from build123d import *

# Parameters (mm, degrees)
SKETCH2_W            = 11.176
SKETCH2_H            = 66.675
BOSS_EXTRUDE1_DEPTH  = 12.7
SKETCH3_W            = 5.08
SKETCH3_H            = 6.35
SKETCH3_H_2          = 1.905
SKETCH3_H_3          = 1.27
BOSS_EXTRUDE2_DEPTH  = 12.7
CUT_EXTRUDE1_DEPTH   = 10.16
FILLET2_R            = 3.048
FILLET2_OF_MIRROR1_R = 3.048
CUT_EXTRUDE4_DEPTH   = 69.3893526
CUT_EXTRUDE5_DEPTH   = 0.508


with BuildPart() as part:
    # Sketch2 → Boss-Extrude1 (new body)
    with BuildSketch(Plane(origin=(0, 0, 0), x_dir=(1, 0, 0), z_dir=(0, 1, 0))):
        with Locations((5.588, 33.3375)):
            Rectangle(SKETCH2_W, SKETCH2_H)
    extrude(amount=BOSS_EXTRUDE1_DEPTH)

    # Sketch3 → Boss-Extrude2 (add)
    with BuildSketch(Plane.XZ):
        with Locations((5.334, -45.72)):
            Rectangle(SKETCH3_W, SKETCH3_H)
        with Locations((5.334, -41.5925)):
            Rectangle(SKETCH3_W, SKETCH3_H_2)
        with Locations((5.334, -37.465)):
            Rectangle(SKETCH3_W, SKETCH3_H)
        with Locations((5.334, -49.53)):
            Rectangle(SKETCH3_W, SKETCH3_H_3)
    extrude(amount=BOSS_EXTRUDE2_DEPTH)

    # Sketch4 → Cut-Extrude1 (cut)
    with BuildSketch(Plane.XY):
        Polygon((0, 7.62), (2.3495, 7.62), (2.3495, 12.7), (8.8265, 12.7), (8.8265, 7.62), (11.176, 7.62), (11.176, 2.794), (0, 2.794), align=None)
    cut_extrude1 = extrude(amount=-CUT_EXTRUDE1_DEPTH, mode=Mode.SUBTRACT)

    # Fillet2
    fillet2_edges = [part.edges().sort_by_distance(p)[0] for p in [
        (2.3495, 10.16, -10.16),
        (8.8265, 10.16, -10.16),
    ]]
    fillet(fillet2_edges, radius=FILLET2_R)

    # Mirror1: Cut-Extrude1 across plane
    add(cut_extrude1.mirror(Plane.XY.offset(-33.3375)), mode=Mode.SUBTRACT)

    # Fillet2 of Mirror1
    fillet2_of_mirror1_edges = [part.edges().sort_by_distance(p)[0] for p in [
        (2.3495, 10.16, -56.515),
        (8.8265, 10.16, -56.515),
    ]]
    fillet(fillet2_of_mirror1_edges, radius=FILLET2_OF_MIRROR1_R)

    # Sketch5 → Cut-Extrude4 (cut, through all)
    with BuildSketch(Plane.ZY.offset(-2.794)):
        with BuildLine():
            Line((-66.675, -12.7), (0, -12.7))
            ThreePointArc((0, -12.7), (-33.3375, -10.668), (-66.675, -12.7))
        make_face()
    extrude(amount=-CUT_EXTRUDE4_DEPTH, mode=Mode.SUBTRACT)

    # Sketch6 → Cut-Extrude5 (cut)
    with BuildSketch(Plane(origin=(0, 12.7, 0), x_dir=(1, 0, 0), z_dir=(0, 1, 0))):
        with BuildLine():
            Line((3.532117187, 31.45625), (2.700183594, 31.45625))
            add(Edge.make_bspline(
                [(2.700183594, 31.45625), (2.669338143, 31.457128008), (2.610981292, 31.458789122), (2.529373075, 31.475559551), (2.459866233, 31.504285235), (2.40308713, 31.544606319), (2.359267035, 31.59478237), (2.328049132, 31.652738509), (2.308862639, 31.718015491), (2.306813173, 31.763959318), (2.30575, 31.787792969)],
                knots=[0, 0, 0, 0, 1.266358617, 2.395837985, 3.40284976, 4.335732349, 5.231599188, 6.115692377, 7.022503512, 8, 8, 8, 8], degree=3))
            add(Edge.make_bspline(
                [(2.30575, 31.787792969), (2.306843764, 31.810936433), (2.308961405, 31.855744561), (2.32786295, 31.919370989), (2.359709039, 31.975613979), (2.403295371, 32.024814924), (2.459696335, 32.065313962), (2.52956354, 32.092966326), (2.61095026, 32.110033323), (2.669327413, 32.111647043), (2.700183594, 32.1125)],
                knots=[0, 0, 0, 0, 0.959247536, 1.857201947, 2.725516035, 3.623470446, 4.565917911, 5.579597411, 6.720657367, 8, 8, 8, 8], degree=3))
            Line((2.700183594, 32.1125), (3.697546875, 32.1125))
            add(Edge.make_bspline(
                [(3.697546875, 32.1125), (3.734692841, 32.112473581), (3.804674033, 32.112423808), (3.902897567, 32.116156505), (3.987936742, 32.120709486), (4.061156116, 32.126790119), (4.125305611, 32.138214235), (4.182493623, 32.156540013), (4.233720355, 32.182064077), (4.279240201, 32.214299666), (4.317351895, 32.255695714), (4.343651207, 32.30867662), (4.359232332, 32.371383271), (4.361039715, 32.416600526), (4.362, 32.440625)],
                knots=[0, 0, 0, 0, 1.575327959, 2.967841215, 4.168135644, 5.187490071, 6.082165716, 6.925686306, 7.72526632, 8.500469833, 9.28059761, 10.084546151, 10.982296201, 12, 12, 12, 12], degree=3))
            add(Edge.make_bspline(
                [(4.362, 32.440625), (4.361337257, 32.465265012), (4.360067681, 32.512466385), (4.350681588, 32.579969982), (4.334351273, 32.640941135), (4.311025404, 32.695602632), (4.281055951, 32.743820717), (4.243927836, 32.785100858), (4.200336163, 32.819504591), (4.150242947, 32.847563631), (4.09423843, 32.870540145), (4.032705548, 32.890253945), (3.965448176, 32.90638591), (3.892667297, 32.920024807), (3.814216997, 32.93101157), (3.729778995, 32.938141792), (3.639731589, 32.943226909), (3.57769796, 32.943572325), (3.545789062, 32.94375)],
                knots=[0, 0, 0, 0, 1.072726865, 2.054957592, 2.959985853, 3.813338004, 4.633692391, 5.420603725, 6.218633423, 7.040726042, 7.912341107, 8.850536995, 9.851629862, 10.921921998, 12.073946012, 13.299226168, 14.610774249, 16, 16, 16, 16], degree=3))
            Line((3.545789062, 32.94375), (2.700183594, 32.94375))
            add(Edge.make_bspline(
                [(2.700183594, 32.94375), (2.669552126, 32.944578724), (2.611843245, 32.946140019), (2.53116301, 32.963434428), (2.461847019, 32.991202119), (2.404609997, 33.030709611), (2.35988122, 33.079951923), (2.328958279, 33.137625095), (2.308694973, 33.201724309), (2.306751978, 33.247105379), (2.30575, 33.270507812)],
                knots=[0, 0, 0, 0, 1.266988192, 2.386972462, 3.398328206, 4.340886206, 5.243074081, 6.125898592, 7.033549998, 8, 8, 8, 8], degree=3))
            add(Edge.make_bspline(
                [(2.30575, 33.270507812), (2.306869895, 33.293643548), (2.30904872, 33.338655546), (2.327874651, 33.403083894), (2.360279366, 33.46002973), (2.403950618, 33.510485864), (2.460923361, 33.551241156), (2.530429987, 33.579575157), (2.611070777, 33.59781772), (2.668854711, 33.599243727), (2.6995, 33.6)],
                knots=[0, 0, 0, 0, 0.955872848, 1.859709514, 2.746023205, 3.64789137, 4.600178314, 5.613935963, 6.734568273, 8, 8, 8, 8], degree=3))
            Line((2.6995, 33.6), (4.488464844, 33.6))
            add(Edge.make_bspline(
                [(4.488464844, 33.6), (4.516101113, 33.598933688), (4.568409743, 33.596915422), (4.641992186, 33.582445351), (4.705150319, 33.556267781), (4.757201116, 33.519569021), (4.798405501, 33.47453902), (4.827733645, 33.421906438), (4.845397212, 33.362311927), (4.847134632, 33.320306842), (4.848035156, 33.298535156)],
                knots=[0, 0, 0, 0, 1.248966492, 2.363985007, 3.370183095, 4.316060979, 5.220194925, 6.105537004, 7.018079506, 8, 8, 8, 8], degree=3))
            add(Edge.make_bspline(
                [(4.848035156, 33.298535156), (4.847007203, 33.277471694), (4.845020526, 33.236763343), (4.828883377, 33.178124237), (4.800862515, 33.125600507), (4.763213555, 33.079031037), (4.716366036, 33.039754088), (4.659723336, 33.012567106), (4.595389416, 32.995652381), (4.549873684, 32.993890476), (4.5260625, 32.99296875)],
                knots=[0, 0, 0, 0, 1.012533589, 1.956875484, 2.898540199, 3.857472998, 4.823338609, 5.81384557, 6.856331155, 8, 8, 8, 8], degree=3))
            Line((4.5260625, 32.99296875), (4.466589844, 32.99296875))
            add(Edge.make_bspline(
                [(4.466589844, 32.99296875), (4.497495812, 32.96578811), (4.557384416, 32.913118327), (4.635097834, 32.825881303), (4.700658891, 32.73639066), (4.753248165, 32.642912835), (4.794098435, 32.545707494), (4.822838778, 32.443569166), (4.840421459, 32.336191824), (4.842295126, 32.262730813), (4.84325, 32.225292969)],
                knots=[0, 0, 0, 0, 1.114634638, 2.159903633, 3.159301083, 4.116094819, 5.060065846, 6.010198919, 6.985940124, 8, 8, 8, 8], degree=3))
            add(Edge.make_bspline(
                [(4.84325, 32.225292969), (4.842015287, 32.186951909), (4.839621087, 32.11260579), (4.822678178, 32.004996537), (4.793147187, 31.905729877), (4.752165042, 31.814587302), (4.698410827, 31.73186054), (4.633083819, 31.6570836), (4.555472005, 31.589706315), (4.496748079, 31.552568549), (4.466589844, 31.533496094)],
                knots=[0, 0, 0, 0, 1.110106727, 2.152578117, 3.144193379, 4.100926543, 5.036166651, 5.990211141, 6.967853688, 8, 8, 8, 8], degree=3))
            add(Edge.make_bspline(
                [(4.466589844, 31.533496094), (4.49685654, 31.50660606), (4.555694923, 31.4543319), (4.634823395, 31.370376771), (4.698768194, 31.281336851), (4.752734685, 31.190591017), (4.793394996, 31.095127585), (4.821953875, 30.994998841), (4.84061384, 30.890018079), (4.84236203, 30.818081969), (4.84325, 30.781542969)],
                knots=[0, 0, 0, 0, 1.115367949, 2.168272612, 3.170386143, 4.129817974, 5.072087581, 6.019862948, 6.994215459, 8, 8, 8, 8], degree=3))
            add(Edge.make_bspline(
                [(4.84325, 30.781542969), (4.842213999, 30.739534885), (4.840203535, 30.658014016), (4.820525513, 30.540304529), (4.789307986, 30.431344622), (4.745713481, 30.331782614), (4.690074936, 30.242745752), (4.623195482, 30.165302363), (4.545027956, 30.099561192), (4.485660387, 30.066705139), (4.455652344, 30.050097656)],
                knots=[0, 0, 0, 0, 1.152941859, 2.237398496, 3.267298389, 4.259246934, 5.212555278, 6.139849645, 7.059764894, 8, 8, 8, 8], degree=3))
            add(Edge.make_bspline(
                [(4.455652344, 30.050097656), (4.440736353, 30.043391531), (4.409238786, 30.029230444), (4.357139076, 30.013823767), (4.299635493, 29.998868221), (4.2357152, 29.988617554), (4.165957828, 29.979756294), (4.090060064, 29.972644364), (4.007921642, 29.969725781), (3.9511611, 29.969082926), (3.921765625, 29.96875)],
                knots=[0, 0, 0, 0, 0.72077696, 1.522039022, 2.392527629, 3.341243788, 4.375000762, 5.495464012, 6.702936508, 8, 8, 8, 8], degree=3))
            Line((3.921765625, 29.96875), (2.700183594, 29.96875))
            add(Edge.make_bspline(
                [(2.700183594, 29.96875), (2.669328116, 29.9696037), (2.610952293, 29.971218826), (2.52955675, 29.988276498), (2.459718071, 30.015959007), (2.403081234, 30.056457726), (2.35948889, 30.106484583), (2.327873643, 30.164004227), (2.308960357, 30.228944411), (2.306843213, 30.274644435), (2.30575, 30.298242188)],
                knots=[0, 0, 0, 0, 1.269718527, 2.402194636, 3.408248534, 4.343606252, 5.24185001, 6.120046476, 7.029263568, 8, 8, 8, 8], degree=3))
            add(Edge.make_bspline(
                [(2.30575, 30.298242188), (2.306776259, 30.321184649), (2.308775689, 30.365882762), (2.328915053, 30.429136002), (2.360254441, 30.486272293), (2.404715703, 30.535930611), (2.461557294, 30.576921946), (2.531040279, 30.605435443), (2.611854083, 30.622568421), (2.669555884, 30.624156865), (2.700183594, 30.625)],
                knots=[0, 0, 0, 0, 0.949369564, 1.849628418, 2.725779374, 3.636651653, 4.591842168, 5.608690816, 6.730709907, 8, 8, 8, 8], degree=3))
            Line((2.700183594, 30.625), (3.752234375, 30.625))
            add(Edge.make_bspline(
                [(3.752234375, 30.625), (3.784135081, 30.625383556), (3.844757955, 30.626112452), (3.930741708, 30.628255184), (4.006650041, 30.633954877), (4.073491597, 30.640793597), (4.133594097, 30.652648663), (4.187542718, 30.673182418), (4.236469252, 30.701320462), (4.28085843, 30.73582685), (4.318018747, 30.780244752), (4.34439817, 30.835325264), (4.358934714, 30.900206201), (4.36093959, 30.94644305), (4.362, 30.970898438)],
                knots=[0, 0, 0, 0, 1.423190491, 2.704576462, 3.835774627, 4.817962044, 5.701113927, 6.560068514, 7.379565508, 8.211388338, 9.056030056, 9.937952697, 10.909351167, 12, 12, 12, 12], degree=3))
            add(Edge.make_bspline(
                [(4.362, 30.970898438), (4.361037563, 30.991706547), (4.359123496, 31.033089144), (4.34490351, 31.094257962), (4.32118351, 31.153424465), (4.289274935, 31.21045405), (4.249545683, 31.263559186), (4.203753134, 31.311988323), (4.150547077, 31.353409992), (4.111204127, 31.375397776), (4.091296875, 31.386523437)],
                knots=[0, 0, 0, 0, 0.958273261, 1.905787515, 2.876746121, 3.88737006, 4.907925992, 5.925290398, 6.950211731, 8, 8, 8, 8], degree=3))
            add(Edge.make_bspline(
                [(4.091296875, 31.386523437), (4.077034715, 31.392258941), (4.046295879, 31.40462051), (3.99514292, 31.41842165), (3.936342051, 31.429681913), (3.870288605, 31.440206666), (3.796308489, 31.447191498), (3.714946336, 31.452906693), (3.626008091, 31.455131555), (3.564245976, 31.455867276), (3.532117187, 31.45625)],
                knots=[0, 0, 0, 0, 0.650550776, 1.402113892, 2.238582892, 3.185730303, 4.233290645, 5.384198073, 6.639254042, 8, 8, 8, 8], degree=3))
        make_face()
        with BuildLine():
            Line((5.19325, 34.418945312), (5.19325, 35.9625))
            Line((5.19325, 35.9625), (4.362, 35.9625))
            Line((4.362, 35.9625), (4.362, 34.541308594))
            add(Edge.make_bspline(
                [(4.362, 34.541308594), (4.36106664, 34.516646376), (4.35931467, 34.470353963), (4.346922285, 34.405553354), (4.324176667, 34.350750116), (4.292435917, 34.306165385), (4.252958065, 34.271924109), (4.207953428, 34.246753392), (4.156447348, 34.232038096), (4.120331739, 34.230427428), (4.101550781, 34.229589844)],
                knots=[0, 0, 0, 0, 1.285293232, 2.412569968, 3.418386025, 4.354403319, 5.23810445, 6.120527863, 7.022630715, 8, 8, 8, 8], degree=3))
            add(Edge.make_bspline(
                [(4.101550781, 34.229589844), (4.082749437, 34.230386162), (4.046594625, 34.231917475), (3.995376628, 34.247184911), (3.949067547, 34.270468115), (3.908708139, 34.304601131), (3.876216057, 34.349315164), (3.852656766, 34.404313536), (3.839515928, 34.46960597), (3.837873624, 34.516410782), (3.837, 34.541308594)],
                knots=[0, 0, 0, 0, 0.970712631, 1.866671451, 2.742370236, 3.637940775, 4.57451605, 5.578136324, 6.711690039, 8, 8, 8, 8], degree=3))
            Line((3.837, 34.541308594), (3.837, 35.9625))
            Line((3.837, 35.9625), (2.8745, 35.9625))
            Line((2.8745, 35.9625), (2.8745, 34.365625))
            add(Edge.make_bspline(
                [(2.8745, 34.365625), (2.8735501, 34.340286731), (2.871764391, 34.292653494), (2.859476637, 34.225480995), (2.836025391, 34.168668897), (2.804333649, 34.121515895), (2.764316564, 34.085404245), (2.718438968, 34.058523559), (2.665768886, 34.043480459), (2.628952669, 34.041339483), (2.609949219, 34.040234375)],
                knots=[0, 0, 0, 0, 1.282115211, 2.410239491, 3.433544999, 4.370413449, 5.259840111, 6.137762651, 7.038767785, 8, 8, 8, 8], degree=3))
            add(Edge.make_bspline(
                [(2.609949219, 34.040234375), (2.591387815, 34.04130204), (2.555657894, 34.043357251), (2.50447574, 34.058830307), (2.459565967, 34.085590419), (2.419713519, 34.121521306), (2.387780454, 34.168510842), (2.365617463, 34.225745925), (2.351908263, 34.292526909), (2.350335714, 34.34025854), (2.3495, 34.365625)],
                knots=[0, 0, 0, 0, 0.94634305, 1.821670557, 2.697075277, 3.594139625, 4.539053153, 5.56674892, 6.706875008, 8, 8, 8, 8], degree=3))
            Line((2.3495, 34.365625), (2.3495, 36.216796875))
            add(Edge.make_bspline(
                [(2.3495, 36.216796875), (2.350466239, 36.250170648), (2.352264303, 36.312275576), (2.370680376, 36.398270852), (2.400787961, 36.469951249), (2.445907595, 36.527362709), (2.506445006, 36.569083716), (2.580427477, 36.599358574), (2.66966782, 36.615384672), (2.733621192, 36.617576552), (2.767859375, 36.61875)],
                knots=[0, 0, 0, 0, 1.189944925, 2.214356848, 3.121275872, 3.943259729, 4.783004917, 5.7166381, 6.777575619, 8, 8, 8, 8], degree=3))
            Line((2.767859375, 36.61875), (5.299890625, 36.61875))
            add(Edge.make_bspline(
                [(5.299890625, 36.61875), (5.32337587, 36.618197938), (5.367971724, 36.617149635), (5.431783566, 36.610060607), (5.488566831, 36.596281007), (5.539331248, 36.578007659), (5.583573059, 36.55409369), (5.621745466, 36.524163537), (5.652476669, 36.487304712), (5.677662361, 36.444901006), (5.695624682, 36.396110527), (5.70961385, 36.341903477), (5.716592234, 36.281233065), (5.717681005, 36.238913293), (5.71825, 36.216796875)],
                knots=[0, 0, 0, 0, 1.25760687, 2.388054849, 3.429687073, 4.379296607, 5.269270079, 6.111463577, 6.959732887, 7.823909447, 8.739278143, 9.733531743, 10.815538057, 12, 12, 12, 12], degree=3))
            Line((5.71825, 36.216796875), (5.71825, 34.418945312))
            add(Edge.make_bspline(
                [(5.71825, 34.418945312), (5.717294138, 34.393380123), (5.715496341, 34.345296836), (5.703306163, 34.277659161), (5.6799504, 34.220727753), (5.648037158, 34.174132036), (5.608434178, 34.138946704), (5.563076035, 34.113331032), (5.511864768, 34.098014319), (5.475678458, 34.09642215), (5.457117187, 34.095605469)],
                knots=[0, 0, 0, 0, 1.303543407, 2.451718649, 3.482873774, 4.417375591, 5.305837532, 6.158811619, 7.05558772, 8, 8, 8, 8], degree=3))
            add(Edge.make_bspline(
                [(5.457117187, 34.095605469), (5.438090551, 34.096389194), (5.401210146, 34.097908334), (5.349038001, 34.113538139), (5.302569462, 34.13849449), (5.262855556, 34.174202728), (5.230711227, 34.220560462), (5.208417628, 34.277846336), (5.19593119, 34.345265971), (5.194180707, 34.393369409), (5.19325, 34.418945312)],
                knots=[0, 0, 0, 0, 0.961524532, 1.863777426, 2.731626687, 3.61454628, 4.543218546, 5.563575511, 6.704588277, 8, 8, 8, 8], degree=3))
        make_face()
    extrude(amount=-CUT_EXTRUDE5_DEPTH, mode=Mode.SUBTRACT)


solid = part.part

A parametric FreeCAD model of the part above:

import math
import FreeCAD as App
import Part
import Sketcher
Q = App.Units.Quantity


def edges_at(feature, points):
    """Names of the edges that pass closest to the given points."""
    edges = feature.Shape.Edges
    near = lambda p: min(range(len(edges)), key=lambda i: edges[i].distToShape(Part.Vertex(*p))[0])
    return sorted({f"Edge{near(p) + 1}" for p in points})


def add_polygon(sketch, points):
    """Adds a closed chain of lines whose ends are joined by coincident constraints."""
    first, n = sketch.GeometryCount, len(points)
    for a, b in zip(points, points[1:] + points[:1]):
        sketch.addGeometry(Part.LineSegment(App.Vector(*a, 0), App.Vector(*b, 0)), False)
    for i in range(n):
        sketch.addConstraint(Sketcher.Constraint("Coincident", first + i, 2, first + (i + 1) % n, 1))

doc = App.newDocument("Part")
body = doc.addObject("PartDesign::Body", "Body")

# Sketch on XZ plane
sketch1 = body.newObject("Sketcher::SketchObject", "Sketch")
sketch1.AttachmentSupport = (doc.getObject("XZ_Plane"), [""])
sketch1.MapMode = "FlatFace"
add_polygon(sketch1, [(0, -66.675), (0, 0), (11.176, 0), (11.176, -66.675)])  # lines 0-3
sketch1.addConstraint([
    Sketcher.Constraint("Vertical", 0),
    Sketcher.Constraint("Horizontal", 1),
    Sketcher.Constraint("Vertical", 2),
    Sketcher.Constraint("Horizontal", 3),
    Sketcher.Constraint("Coincident", 0, 2, -1, 1),
    Sketcher.Constraint("DistanceX", 1, 1, 1, 2, Q("0.44 in")),
    Sketcher.Constraint("DistanceY", 0, 1, 0, 2, Q("2.625 in")),
])
pad1 = body.newObject("PartDesign::Pad", "Pad")
pad1.Profile = sketch1
pad1.Length = Q("0.5 in")
pad1.Reversed = True

# Sketch on XZ plane
sketch2 = body.newObject("Sketcher::SketchObject", "Sketch001")
sketch2.AttachmentSupport = (doc.getObject("XZ_Plane"), [""])
sketch2.MapMode = "FlatFace"
add_polygon(sketch2, [(7.874, -34.29), (2.794, -34.29), (2.794, -50.165), (7.874, -50.165)])  # lines 0-3
sketch2.addConstraint([
    Sketcher.Constraint("Horizontal", 0),
    Sketcher.Constraint("Vertical", 1),
    Sketcher.Constraint("Horizontal", 2),
    Sketcher.Constraint("Vertical", 3),
    Sketcher.Constraint("DistanceX", 0, 2, 0, 1, Q("0.2 in")),
    Sketcher.Constraint("DistanceY", 1, 2, 1, 1, Q("0.625 in")),
    Sketcher.Constraint("DistanceX", -1, 1, 0, 2, Q("0.11 in")),
    Sketcher.Constraint("DistanceY", 0, 2, -1, 1, Q("1.35 in")),
])
pad2 = body.newObject("PartDesign::Pad", "Pad001")
pad2.Profile = sketch2
pad2.Length = Q("0.5 in")

# Sketch on XY plane
sketch3 = body.newObject("Sketcher::SketchObject", "Sketch002")
sketch3.AttachmentSupport = (doc.getObject("XY_Plane"), [""])
sketch3.MapMode = "FlatFace"
add_polygon(sketch3, [(2.3495, 7.62), (0, 7.62), (0, 2.794), (11.176, 2.794), (11.176, 7.62), (8.8265, 7.62), (8.8265, 12.7), (2.3495, 12.7)])  # lines 0-7
sketch3.addConstraint([
    Sketcher.Constraint("Horizontal", 0),
    Sketcher.Constraint("Vertical", 1),
    Sketcher.Constraint("Horizontal", 2),
    Sketcher.Constraint("Vertical", 3),
    Sketcher.Constraint("Horizontal", 4),
    Sketcher.Constraint("Vertical", 5),
    Sketcher.Constraint("Horizontal", 6),
    Sketcher.Constraint("Vertical", 7),
    Sketcher.Constraint("PointOnObject", 0, 2, -2),
    Sketcher.Constraint("Horizontal", 0, 2, 3, 2),
    Sketcher.Constraint("Equal", 0, 4),
    Sketcher.Constraint("DistanceY", 5, 1, 5, 2, Q("0.2 in")),
    Sketcher.Constraint("DistanceX", 2, 1, 2, 2, Q("0.44 in")),
    Sketcher.Constraint("DistanceY", 1, 2, 1, 1, Q("0.19 in")),
    Sketcher.Constraint("DistanceY", -1, 1, 0, 2, Q("0.3 in")),
    Sketcher.Constraint("DistanceX", 6, 2, 6, 1, Q("0.255 in")),
])
pocket1 = body.newObject("PartDesign::Pocket", "Pocket")
pocket1.Profile = sketch3
pocket1.Length = Q("0.4 in")
doc.recompute()

fillet = body.newObject("PartDesign::Fillet", "Fillet")
fillet.Base = (pocket1, edges_at(pocket1, [(2.349, 10.16, -10.16), (8.826, 10.16, -10.16)]))
fillet.Radius = Q("0.12 in")
doc.recompute()

datumplane = body.newObject("PartDesign::Plane", "DatumPlane")
datumplane.AttachmentSupport = (doc.getObject("XY_Plane"), [""])
datumplane.MapMode = "FlatFace"
datumplane.AttachmentOffset = App.Placement(App.Vector(0, 0, -1.3125 * 25.4), App.Rotation())
mirrored = body.newObject("PartDesign::Mirrored", "Mirrored")
mirrored.Originals = [pocket1]
mirrored.MirrorPlane = (datumplane, [""])
body.Tip = mirrored
doc.recompute()

fillet2 = body.newObject("PartDesign::Fillet", "Fillet001")
fillet2.Base = (mirrored, edges_at(mirrored, [(2.349, 10.16, -56.515), (8.826, 10.16, -56.515)]))
fillet2.Radius = Q("0.12 in")

# Sketch on YZ plane
sketch4 = body.newObject("Sketcher::SketchObject", "Sketch003")
sketch4.AttachmentSupport = (doc.getObject("YZ_Plane"), [""])
sketch4.MapMode = "FlatFace"
sketch4.AttachmentOffset = App.Placement(App.Vector(0, 0, 0.11 * 25.4), App.Rotation())
sketch4.addGeometry([
    Part.LineSegment(App.Vector(-12.7, -66.675, 0), App.Vector(-12.7, 0, 0)),
    Part.ArcOfCircle(Part.Circle(App.Vector(-285.15568, -33.3375, 0), App.Vector(0, 0, 1), 274.48768), math.radians(-6.975998), math.radians(6.975998)),
], False)
sketch4.addConstraint([
    Sketcher.Constraint("Coincident", 0, 1, 1, 1),
    Sketcher.Constraint("Coincident", 1, 2, 0, 2),
    Sketcher.Constraint("Vertical", 0),
    Sketcher.Constraint("PointOnObject", 1, 2, -1),
    Sketcher.Constraint("DistanceX", 0, 1, -1, 1, Q("0.5 in")),
    Sketcher.Constraint("DistanceY", 0, 1, 0, 2, Q("2.625 in")),
    Sketcher.Constraint("Radius", 1, 274.48768),
])
pocket2 = body.newObject("PartDesign::Pocket", "Pocket001")
pocket2.Profile = sketch4
pocket2.Type = "ThroughAll"
pocket2.Reversed = True

# Sketch on XZ plane
sketch5 = body.newObject("Sketcher::SketchObject", "Sketch004")
sketch5.AttachmentSupport = (doc.getObject("XZ_Plane"), [""])
sketch5.MapMode = "FlatFace"
sketch5.AttachmentOffset = App.Placement(App.Vector(0, 0, -0.5 * 25.4), App.Rotation())
sketch5.addGeometry([
    Part.LineSegment(App.Vector(2.700184, -31.45625, 0), App.Vector(3.532117, -31.45625, 0)),  # 0
    Part.BSplineCurve([App.Vector(4.091297, -31.386523, 0), App.Vector(4.077035, -31.392259, 0), App.Vector(4.046296, -31.404621, 0), App.Vector(3.995143, -31.418422, 0), App.Vector(3.936342, -31.429682, 0), App.Vector(3.870289, -31.440207, 0), App.Vector(3.796308, -31.447191, 0), App.Vector(3.714946, -31.452907, 0), App.Vector(3.626008, -31.455132, 0), App.Vector(3.564246, -31.455867, 0), App.Vector(3.532117, -31.45625, 0)], [4, 1, 1, 1, 1, 1, 1, 1, 4], [0, 0.650550776, 1.402113892, 2.238582892, 3.185730303, 4.233290645, 5.384198073, 6.639254042, 8], False, 3, [1, 1, 1, 1, 1, 1, 1, 1, 1, 1, 1], False),  # 1
    Part.BSplineCurve([App.Vector(4.362, -30.970898, 0), App.Vector(4.361038, -30.991707, 0), App.Vector(4.359123, -31.033089, 0), App.Vector(4.344904, -31.094258, 0), App.Vector(4.321184, -31.153424, 0), App.Vector(4.289275, -31.210454, 0), App.Vector(4.249546, -31.263559, 0), App.Vector(4.203753, -31.311988, 0), App.Vector(4.150547, -31.35341, 0), App.Vector(4.111204, -31.375398, 0), App.Vector(4.091297, -31.386523, 0)], [4, 1, 1, 1, 1, 1, 1, 1, 4], [0, 0.958273261, 1.905787515, 2.876746121, 3.88737006, 4.907925992, 5.925290398, 6.950211731, 8], False, 3, [1, 1, 1, 1, 1, 1, 1, 1, 1, 1, 1], False),  # 2
    Part.BSplineCurve([App.Vector(3.752234, -30.625, 0), App.Vector(3.784135, -30.625384, 0), App.Vector(3.844758, -30.626112, 0), App.Vector(3.930742, -30.628255, 0), App.Vector(4.00665, -30.633955, 0), App.Vector(4.073492, -30.640794, 0), App.Vector(4.133594, -30.652649, 0), App.Vector(4.187543, -30.673182, 0), App.Vector(4.236469, -30.70132, 0), App.Vector(4.280858, -30.735827, 0), App.Vector(4.318019, -30.780245, 0), App.Vector(4.344398, -30.835325, 0), App.Vector(4.358935, -30.900206, 0), App.Vector(4.36094, -30.946443, 0), App.Vector(4.362, -30.970898, 0)], [4, 1, 1, 1, 1, 1, 1, 1, 1, 1, 1, 1, 4], [0, 1.423190491, 2.704576462, 3.835774627, 4.817962044, 5.701113927, 6.560068514, 7.379565508, 8.211388338, 9.056030056, 9.937952697, 10.909351167, 12], False, 3, [1, 1, 1, 1, 1, 1, 1, 1, 1, 1, 1, 1, 1, 1, 1], False),  # 3
    Part.LineSegment(App.Vector(3.752234, -30.625, 0), App.Vector(2.700184, -30.625, 0)),  # 4
    Part.BSplineCurve([App.Vector(2.30575, -30.298242, 0), App.Vector(2.306776, -30.321185, 0), App.Vector(2.308776, -30.365883, 0), App.Vector(2.328915, -30.429136, 0), App.Vector(2.360254, -30.486272, 0), App.Vector(2.404716, -30.535931, 0), App.Vector(2.461557, -30.576922, 0), App.Vector(2.53104, -30.605435, 0), App.Vector(2.611854, -30.622568, 0), App.Vector(2.669556, -30.624157, 0), App.Vector(2.700184, -30.625, 0)], [4, 1, 1, 1, 1, 1, 1, 1, 4], [0, 0.949369564, 1.849628418, 2.725779374, 3.636651653, 4.591842168, 5.608690816, 6.730709907, 8], False, 3, [1, 1, 1, 1, 1, 1, 1, 1, 1, 1, 1], False),  # 5
    Part.BSplineCurve([App.Vector(2.700184, -29.96875, 0), App.Vector(2.669328, -29.969604, 0), App.Vector(2.610952, -29.971219, 0), App.Vector(2.529557, -29.988276, 0), App.Vector(2.459718, -30.015959, 0), App.Vector(2.403081, -30.056458, 0), App.Vector(2.359489, -30.106485, 0), App.Vector(2.327874, -30.164004, 0), App.Vector(2.30896, -30.228944, 0), App.Vector(2.306843, -30.274644, 0), App.Vector(2.30575, -30.298242, 0)], [4, 1, 1, 1, 1, 1, 1, 1, 4], [0, 1.269718527, 2.402194636, 3.408248534, 4.343606252, 5.24185001, 6.120046476, 7.029263568, 8], False, 3, [1, 1, 1, 1, 1, 1, 1, 1, 1, 1, 1], False),  # 6
    Part.LineSegment(App.Vector(2.700184, -29.96875, 0), App.Vector(3.921766, -29.96875, 0)),  # 7
    Part.BSplineCurve([App.Vector(4.455652, -30.050098, 0), App.Vector(4.440736, -30.043392, 0), App.Vector(4.409239, -30.02923, 0), App.Vector(4.357139, -30.013824, 0), App.Vector(4.299635, -29.998868, 0), App.Vector(4.235715, -29.988618, 0), App.Vector(4.165958, -29.979756, 0), App.Vector(4.09006, -29.972644, 0), App.Vector(4.007922, -29.969726, 0), App.Vector(3.951161, -29.969083, 0), App.Vector(3.921766, -29.96875, 0)], [4, 1, 1, 1, 1, 1, 1, 1, 4], [0, 0.72077696, 1.522039022, 2.392527629, 3.341243788, 4.375000762, 5.495464012, 6.702936508, 8], False, 3, [1, 1, 1, 1, 1, 1, 1, 1, 1, 1, 1], False),  # 8
    Part.BSplineCurve([App.Vector(4.84325, -30.781543, 0), App.Vector(4.842214, -30.739535, 0), App.Vector(4.840204, -30.658014, 0), App.Vector(4.820526, -30.540305, 0), App.Vector(4.789308, -30.431345, 0), App.Vector(4.745713, -30.331783, 0), App.Vector(4.690075, -30.242746, 0), App.Vector(4.623195, -30.165302, 0), App.Vector(4.545028, -30.099561, 0), App.Vector(4.48566, -30.066705, 0), App.Vector(4.455652, -30.050098, 0)], [4, 1, 1, 1, 1, 1, 1, 1, 4], [0, 1.152941859, 2.237398496, 3.267298389, 4.259246934, 5.212555278, 6.139849645, 7.059764894, 8], False, 3, [1, 1, 1, 1, 1, 1, 1, 1, 1, 1, 1], False),  # 9
    Part.BSplineCurve([App.Vector(4.46659, -31.533496, 0), App.Vector(4.496857, -31.506606, 0), App.Vector(4.555695, -31.454332, 0), App.Vector(4.634823, -31.370377, 0), App.Vector(4.698768, -31.281337, 0), App.Vector(4.752735, -31.190591, 0), App.Vector(4.793395, -31.095128, 0), App.Vector(4.821954, -30.994999, 0), App.Vector(4.840614, -30.890018, 0), App.Vector(4.842362, -30.818082, 0), App.Vector(4.84325, -30.781543, 0)], [4, 1, 1, 1, 1, 1, 1, 1, 4], [0, 1.115367949, 2.168272612, 3.170386143, 4.129817974, 5.072087581, 6.019862948, 6.994215459, 8], False, 3, [1, 1, 1, 1, 1, 1, 1, 1, 1, 1, 1], False),  # 10
    Part.BSplineCurve([App.Vector(4.84325, -32.225293, 0), App.Vector(4.842015, -32.186952, 0), App.Vector(4.839621, -32.112606, 0), App.Vector(4.822678, -32.004997, 0), App.Vector(4.793147, -31.90573, 0), App.Vector(4.752165, -31.814587, 0), App.Vector(4.698411, -31.731861, 0), App.Vector(4.633084, -31.657084, 0), App.Vector(4.555472, -31.589706, 0), App.Vector(4.496748, -31.552569, 0), App.Vector(4.46659, -31.533496, 0)], [4, 1, 1, 1, 1, 1, 1, 1, 4], [0, 1.110106727, 2.152578117, 3.144193379, 4.100926543, 5.036166651, 5.990211141, 6.967853688, 8], False, 3, [1, 1, 1, 1, 1, 1, 1, 1, 1, 1, 1], False),  # 11
    Part.BSplineCurve([App.Vector(4.46659, -32.992969, 0), App.Vector(4.497496, -32.965788, 0), App.Vector(4.557384, -32.913118, 0), App.Vector(4.635098, -32.825881, 0), App.Vector(4.700659, -32.736391, 0), App.Vector(4.753248, -32.642913, 0), App.Vector(4.794098, -32.545707, 0), App.Vector(4.822839, -32.443569, 0), App.Vector(4.840421, -32.336192, 0), App.Vector(4.842295, -32.262731, 0), App.Vector(4.84325, -32.225293, 0)], [4, 1, 1, 1, 1, 1, 1, 1, 4], [0, 1.114634638, 2.159903633, 3.159301083, 4.116094819, 5.060065846, 6.010198919, 6.985940124, 8], False, 3, [1, 1, 1, 1, 1, 1, 1, 1, 1, 1, 1], False),  # 12
    Part.LineSegment(App.Vector(4.46659, -32.992969, 0), App.Vector(4.526063, -32.992969, 0)),  # 13
    Part.BSplineCurve([App.Vector(4.848035, -33.298535, 0), App.Vector(4.847007, -33.277472, 0), App.Vector(4.845021, -33.236763, 0), App.Vector(4.828883, -33.178124, 0), App.Vector(4.800863, -33.125601, 0), App.Vector(4.763214, -33.079031, 0), App.Vector(4.716366, -33.039754, 0), App.Vector(4.659723, -33.012567, 0), App.Vector(4.595389, -32.995652, 0), App.Vector(4.549874, -32.99389, 0), App.Vector(4.526063, -32.992969, 0)], [4, 1, 1, 1, 1, 1, 1, 1, 4], [0, 1.012533589, 1.956875484, 2.898540199, 3.857472998, 4.823338609, 5.81384557, 6.856331155, 8], False, 3, [1, 1, 1, 1, 1, 1, 1, 1, 1, 1, 1], False),  # 14
    Part.BSplineCurve([App.Vector(4.488465, -33.6, 0), App.Vector(4.516101, -33.598934, 0), App.Vector(4.56841, -33.596915, 0), App.Vector(4.641992, -33.582445, 0), App.Vector(4.70515, -33.556268, 0), App.Vector(4.757201, -33.519569, 0), App.Vector(4.798406, -33.474539, 0), App.Vector(4.827734, -33.421906, 0), App.Vector(4.845397, -33.362312, 0), App.Vector(4.847135, -33.320307, 0), App.Vector(4.848035, -33.298535, 0)], [4, 1, 1, 1, 1, 1, 1, 1, 4], [0, 1.248966492, 2.363985007, 3.370183095, 4.316060979, 5.220194925, 6.105537004, 7.018079506, 8], False, 3, [1, 1, 1, 1, 1, 1, 1, 1, 1, 1, 1], False),  # 15
    Part.LineSegment(App.Vector(4.488465, -33.6, 0), App.Vector(2.6995, -33.6, 0)),  # 16
    Part.BSplineCurve([App.Vector(2.30575, -33.270508, 0), App.Vector(2.30687, -33.293644, 0), App.Vector(2.309049, -33.338656, 0), App.Vector(2.327875, -33.403084, 0), App.Vector(2.360279, -33.46003, 0), App.Vector(2.403951, -33.510486, 0), App.Vector(2.460923, -33.551241, 0), App.Vector(2.53043, -33.579575, 0), App.Vector(2.611071, -33.597818, 0), App.Vector(2.668855, -33.599244, 0), App.Vector(2.6995, -33.6, 0)], [4, 1, 1, 1, 1, 1, 1, 1, 4], [0, 0.955872848, 1.859709514, 2.746023205, 3.64789137, 4.600178314, 5.613935963, 6.734568273, 8], False, 3, [1, 1, 1, 1, 1, 1, 1, 1, 1, 1, 1], False),  # 17
    Part.BSplineCurve([App.Vector(2.700184, -32.94375, 0), App.Vector(2.669552, -32.944579, 0), App.Vector(2.611843, -32.94614, 0), App.Vector(2.531163, -32.963434, 0), App.Vector(2.461847, -32.991202, 0), App.Vector(2.40461, -33.03071, 0), App.Vector(2.359881, -33.079952, 0), App.Vector(2.328958, -33.137625, 0), App.Vector(2.308695, -33.201724, 0), App.Vector(2.306752, -33.247105, 0), App.Vector(2.30575, -33.270508, 0)], [4, 1, 1, 1, 1, 1, 1, 1, 4], [0, 1.266988192, 2.386972462, 3.398328206, 4.340886206, 5.243074081, 6.125898592, 7.033549998, 8], False, 3, [1, 1, 1, 1, 1, 1, 1, 1, 1, 1, 1], False),  # 18
    Part.LineSegment(App.Vector(2.700184, -32.94375, 0), App.Vector(3.545789, -32.94375, 0)),  # 19
    Part.BSplineCurve([App.Vector(4.362, -32.440625, 0), App.Vector(4.361337, -32.465265, 0), App.Vector(4.360068, -32.512466, 0), App.Vector(4.350682, -32.57997, 0), App.Vector(4.334351, -32.640941, 0), App.Vector(4.311025, -32.695603, 0), App.Vector(4.281056, -32.743821, 0), App.Vector(4.243928, -32.785101, 0), App.Vector(4.200336, -32.819505, 0), App.Vector(4.150243, -32.847564, 0), App.Vector(4.094238, -32.87054, 0), App.Vector(4.032706, -32.890254, 0), App.Vector(3.965448, -32.906386, 0), App.Vector(3.892667, -32.920025, 0), App.Vector(3.814217, -32.931012, 0), App.Vector(3.729779, -32.938142, 0), App.Vector(3.639732, -32.943227, 0), App.Vector(3.577698, -32.943572, 0), App.Vector(3.545789, -32.94375, 0)], [4, 1, 1, 1, 1, 1, 1, 1, 1, 1, 1, 1, 1, 1, 1, 1, 4], [0, 1.072726865, 2.054957592, 2.959985853, 3.813338004, 4.633692391, 5.420603725, 6.218633423, 7.040726042, 7.912341107, 8.850536995, 9.851629862, 10.921921998, 12.073946012, 13.299226168, 14.610774249, 16], False, 3, [1, 1, 1, 1, 1, 1, 1, 1, 1, 1, 1, 1, 1, 1, 1, 1, 1, 1, 1], False),  # 20
    Part.BSplineCurve([App.Vector(3.697547, -32.1125, 0), App.Vector(3.734693, -32.112474, 0), App.Vector(3.804674, -32.112424, 0), App.Vector(3.902898, -32.116157, 0), App.Vector(3.987937, -32.120709, 0), App.Vector(4.061156, -32.12679, 0), App.Vector(4.125306, -32.138214, 0), App.Vector(4.182494, -32.15654, 0), App.Vector(4.23372, -32.182064, 0), App.Vector(4.27924, -32.2143, 0), App.Vector(4.317352, -32.255696, 0), App.Vector(4.343651, -32.308677, 0), App.Vector(4.359232, -32.371383, 0), App.Vector(4.36104, -32.416601, 0), App.Vector(4.362, -32.440625, 0)], [4, 1, 1, 1, 1, 1, 1, 1, 1, 1, 1, 1, 4], [0, 1.575327959, 2.967841215, 4.168135644, 5.187490071, 6.082165716, 6.925686306, 7.72526632, 8.500469833, 9.28059761, 10.084546151, 10.982296201, 12], False, 3, [1, 1, 1, 1, 1, 1, 1, 1, 1, 1, 1, 1, 1, 1, 1], False),  # 21
    Part.LineSegment(App.Vector(3.697547, -32.1125, 0), App.Vector(2.700184, -32.1125, 0)),  # 22
    Part.BSplineCurve([App.Vector(2.30575, -31.787793, 0), App.Vector(2.306844, -31.810936, 0), App.Vector(2.308961, -31.855745, 0), App.Vector(2.327863, -31.919371, 0), App.Vector(2.359709, -31.975614, 0), App.Vector(2.403295, -32.024815, 0), App.Vector(2.459696, -32.065314, 0), App.Vector(2.529564, -32.092966, 0), App.Vector(2.61095, -32.110033, 0), App.Vector(2.669327, -32.111647, 0), App.Vector(2.700184, -32.1125, 0)], [4, 1, 1, 1, 1, 1, 1, 1, 4], [0, 0.959247536, 1.857201947, 2.725516035, 3.623470446, 4.565917911, 5.579597411, 6.720657367, 8], False, 3, [1, 1, 1, 1, 1, 1, 1, 1, 1, 1, 1], False),  # 23
    Part.BSplineCurve([App.Vector(2.700184, -31.45625, 0), App.Vector(2.669338, -31.457128, 0), App.Vector(2.610981, -31.458789, 0), App.Vector(2.529373, -31.47556, 0), App.Vector(2.459866, -31.504285, 0), App.Vector(2.403087, -31.544606, 0), App.Vector(2.359267, -31.594782, 0), App.Vector(2.328049, -31.652739, 0), App.Vector(2.308863, -31.718015, 0), App.Vector(2.306813, -31.763959, 0), App.Vector(2.30575, -31.787793, 0)], [4, 1, 1, 1, 1, 1, 1, 1, 4], [0, 1.266358617, 2.395837985, 3.40284976, 4.335732349, 5.231599188, 6.115692377, 7.022503512, 8], False, 3, [1, 1, 1, 1, 1, 1, 1, 1, 1, 1, 1], False),  # 24
    Part.LineSegment(App.Vector(5.19325, -35.9625, 0), App.Vector(5.19325, -34.418945, 0)),  # 25
    Part.BSplineCurve([App.Vector(5.457117, -34.095605, 0), App.Vector(5.438091, -34.096389, 0), App.Vector(5.40121, -34.097908, 0), App.Vector(5.349038, -34.113538, 0), App.Vector(5.302569, -34.138494, 0), App.Vector(5.262856, -34.174203, 0), App.Vector(5.230711, -34.22056, 0), App.Vector(5.208418, -34.277846, 0), App.Vector(5.195931, -34.345266, 0), App.Vector(5.194181, -34.393369, 0), App.Vector(5.19325, -34.418945, 0)], [4, 1, 1, 1, 1, 1, 1, 1, 4], [0, 0.961524532, 1.863777426, 2.731626687, 3.61454628, 4.543218546, 5.563575511, 6.704588277, 8], False, 3, [1, 1, 1, 1, 1, 1, 1, 1, 1, 1, 1], False),  # 26
    Part.BSplineCurve([App.Vector(5.71825, -34.418945, 0), App.Vector(5.717294, -34.39338, 0), App.Vector(5.715496, -34.345297, 0), App.Vector(5.703306, -34.277659, 0), App.Vector(5.67995, -34.220728, 0), App.Vector(5.648037, -34.174132, 0), App.Vector(5.608434, -34.138947, 0), App.Vector(5.563076, -34.113331, 0), App.Vector(5.511865, -34.098014, 0), App.Vector(5.475678, -34.096422, 0), App.Vector(5.457117, -34.095605, 0)], [4, 1, 1, 1, 1, 1, 1, 1, 4], [0, 1.303543407, 2.451718649, 3.482873774, 4.417375591, 5.305837532, 6.158811619, 7.05558772, 8], False, 3, [1, 1, 1, 1, 1, 1, 1, 1, 1, 1, 1], False),  # 27
    Part.LineSegment(App.Vector(5.71825, -34.418945, 0), App.Vector(5.71825, -36.216797, 0)),  # 28
    Part.BSplineCurve([App.Vector(5.299891, -36.61875, 0), App.Vector(5.323376, -36.618198, 0), App.Vector(5.367972, -36.61715, 0), App.Vector(5.431784, -36.610061, 0), App.Vector(5.488567, -36.596281, 0), App.Vector(5.539331, -36.578008, 0), App.Vector(5.583573, -36.554094, 0), App.Vector(5.621745, -36.524164, 0), App.Vector(5.652477, -36.487305, 0), App.Vector(5.677662, -36.444901, 0), App.Vector(5.695625, -36.396111, 0), App.Vector(5.709614, -36.341903, 0), App.Vector(5.716592, -36.281233, 0), App.Vector(5.717681, -36.238913, 0), App.Vector(5.71825, -36.216797, 0)], [4, 1, 1, 1, 1, 1, 1, 1, 1, 1, 1, 1, 4], [0, 1.25760687, 2.388054849, 3.429687073, 4.379296607, 5.269270079, 6.111463577, 6.959732887, 7.823909447, 8.739278143, 9.733531743, 10.815538057, 12], False, 3, [1, 1, 1, 1, 1, 1, 1, 1, 1, 1, 1, 1, 1, 1, 1], False),  # 29
    Part.LineSegment(App.Vector(5.299891, -36.61875, 0), App.Vector(2.767859, -36.61875, 0)),  # 30
    Part.BSplineCurve([App.Vector(2.3495, -36.216797, 0), App.Vector(2.350466, -36.250171, 0), App.Vector(2.352264, -36.312276, 0), App.Vector(2.37068, -36.398271, 0), App.Vector(2.400788, -36.469951, 0), App.Vector(2.445908, -36.527363, 0), App.Vector(2.506445, -36.569084, 0), App.Vector(2.580427, -36.599359, 0), App.Vector(2.669668, -36.615385, 0), App.Vector(2.733621, -36.617577, 0), App.Vector(2.767859, -36.61875, 0)], [4, 1, 1, 1, 1, 1, 1, 1, 4], [0, 1.189944925, 2.214356848, 3.121275872, 3.943259729, 4.783004917, 5.7166381, 6.777575619, 8], False, 3, [1, 1, 1, 1, 1, 1, 1, 1, 1, 1, 1], False),  # 31
    Part.LineSegment(App.Vector(2.3495, -36.216797, 0), App.Vector(2.3495, -34.365625, 0)),  # 32
    Part.BSplineCurve([App.Vector(2.609949, -34.040234, 0), App.Vector(2.591388, -34.041302, 0), App.Vector(2.555658, -34.043357, 0), App.Vector(2.504476, -34.05883, 0), App.Vector(2.459566, -34.08559, 0), App.Vector(2.419714, -34.121521, 0), App.Vector(2.38778, -34.168511, 0), App.Vector(2.365617, -34.225746, 0), App.Vector(2.351908, -34.292527, 0), App.Vector(2.350336, -34.340259, 0), App.Vector(2.3495, -34.365625, 0)], [4, 1, 1, 1, 1, 1, 1, 1, 4], [0, 0.94634305, 1.821670557, 2.697075277, 3.594139625, 4.539053153, 5.56674892, 6.706875008, 8], False, 3, [1, 1, 1, 1, 1, 1, 1, 1, 1, 1, 1], False),  # 33
    Part.BSplineCurve([App.Vector(2.8745, -34.365625, 0), App.Vector(2.87355, -34.340287, 0), App.Vector(2.871764, -34.292653, 0), App.Vector(2.859477, -34.225481, 0), App.Vector(2.836025, -34.168669, 0), App.Vector(2.804334, -34.121516, 0), App.Vector(2.764317, -34.085404, 0), App.Vector(2.718439, -34.058524, 0), App.Vector(2.665769, -34.04348, 0), App.Vector(2.628953, -34.041339, 0), App.Vector(2.609949, -34.040234, 0)], [4, 1, 1, 1, 1, 1, 1, 1, 4], [0, 1.282115211, 2.410239491, 3.433544999, 4.370413449, 5.259840111, 6.137762651, 7.038767785, 8], False, 3, [1, 1, 1, 1, 1, 1, 1, 1, 1, 1, 1], False),  # 34
    Part.LineSegment(App.Vector(2.8745, -34.365625, 0), App.Vector(2.8745, -35.9625, 0)),  # 35
    Part.LineSegment(App.Vector(2.8745, -35.9625, 0), App.Vector(3.837, -35.9625, 0)),  # 36
    Part.LineSegment(App.Vector(3.837, -35.9625, 0), App.Vector(3.837, -34.541309, 0)),  # 37
    Part.BSplineCurve([App.Vector(4.101551, -34.22959, 0), App.Vector(4.082749, -34.230386, 0), App.Vector(4.046595, -34.231917, 0), App.Vector(3.995377, -34.247185, 0), App.Vector(3.949068, -34.270468, 0), App.Vector(3.908708, -34.304601, 0), App.Vector(3.876216, -34.349315, 0), App.Vector(3.852657, -34.404314, 0), App.Vector(3.839516, -34.469606, 0), App.Vector(3.837874, -34.516411, 0), App.Vector(3.837, -34.541309, 0)], [4, 1, 1, 1, 1, 1, 1, 1, 4], [0, 0.970712631, 1.866671451, 2.742370236, 3.637940775, 4.57451605, 5.578136324, 6.711690039, 8], False, 3, [1, 1, 1, 1, 1, 1, 1, 1, 1, 1, 1], False),  # 38
    Part.BSplineCurve([App.Vector(4.362, -34.541309, 0), App.Vector(4.361067, -34.516646, 0), App.Vector(4.359315, -34.470354, 0), App.Vector(4.346922, -34.405553, 0), App.Vector(4.324177, -34.35075, 0), App.Vector(4.292436, -34.306165, 0), App.Vector(4.252958, -34.271924, 0), App.Vector(4.207953, -34.246753, 0), App.Vector(4.156447, -34.232038, 0), App.Vector(4.120332, -34.230427, 0), App.Vector(4.101551, -34.22959, 0)], [4, 1, 1, 1, 1, 1, 1, 1, 4], [0, 1.285293232, 2.412569968, 3.418386025, 4.354403319, 5.23810445, 6.120527863, 7.022630715, 8], False, 3, [1, 1, 1, 1, 1, 1, 1, 1, 1, 1, 1], False),  # 39
    Part.LineSegment(App.Vector(4.362, -34.541309, 0), App.Vector(4.362, -35.9625, 0)),  # 40
    Part.LineSegment(App.Vector(4.362, -35.9625, 0), App.Vector(5.19325, -35.9625, 0)),  # 41
], False)
sketch5.addConstraint([
    Sketcher.Constraint("Block", 1),
    Sketcher.Constraint("Block", 2),
    Sketcher.Constraint("Block", 3),
    Sketcher.Constraint("Block", 5),
    Sketcher.Constraint("Block", 6),
    Sketcher.Constraint("Block", 8),
    Sketcher.Constraint("Block", 9),
    Sketcher.Constraint("Block", 10),
    Sketcher.Constraint("Block", 11),
    Sketcher.Constraint("Block", 12),
    Sketcher.Constraint("Block", 14),
    Sketcher.Constraint("Block", 15),
    Sketcher.Constraint("Block", 17),
    Sketcher.Constraint("Block", 18),
    Sketcher.Constraint("Block", 20),
    Sketcher.Constraint("Block", 21),
    Sketcher.Constraint("Block", 23),
    Sketcher.Constraint("Block", 24),
    Sketcher.Constraint("Block", 26),
    Sketcher.Constraint("Block", 27),
    Sketcher.Constraint("Block", 29),
    Sketcher.Constraint("Block", 31),
    Sketcher.Constraint("Block", 33),
    Sketcher.Constraint("Block", 34),
    Sketcher.Constraint("Block", 38),
    Sketcher.Constraint("Block", 39),
    Sketcher.Constraint("Coincident", 0, 2, 1, 2),
    Sketcher.Constraint("Coincident", 3, 1, 4, 1),
    Sketcher.Constraint("Coincident", 4, 2, 5, 2),
    Sketcher.Constraint("Coincident", 6, 1, 7, 1),
    Sketcher.Constraint("Coincident", 7, 2, 8, 2),
    Sketcher.Constraint("Coincident", 12, 1, 13, 1),
    Sketcher.Constraint("Coincident", 13, 2, 14, 2),
    Sketcher.Constraint("Coincident", 15, 1, 16, 1),
    Sketcher.Constraint("Coincident", 16, 2, 17, 2),
    Sketcher.Constraint("Coincident", 18, 1, 19, 1),
    Sketcher.Constraint("Coincident", 19, 2, 20, 2),
    Sketcher.Constraint("Coincident", 21, 1, 22, 1),
    Sketcher.Constraint("Coincident", 22, 2, 23, 2),
    Sketcher.Constraint("Coincident", 24, 1, 0, 1),
    Sketcher.Constraint("Coincident", 25, 2, 26, 2),
    Sketcher.Constraint("Coincident", 27, 1, 28, 1),
    Sketcher.Constraint("Coincident", 28, 2, 29, 2),
    Sketcher.Constraint("Coincident", 29, 1, 30, 1),
    Sketcher.Constraint("Coincident", 30, 2, 31, 2),
    Sketcher.Constraint("Coincident", 31, 1, 32, 1),
    Sketcher.Constraint("Coincident", 32, 2, 33, 2),
    Sketcher.Constraint("Coincident", 34, 1, 35, 1),
    Sketcher.Constraint("Coincident", 35, 2, 36, 1),
    Sketcher.Constraint("Coincident", 36, 2, 37, 1),
    Sketcher.Constraint("Coincident", 37, 2, 38, 2),
    Sketcher.Constraint("Coincident", 39, 1, 40, 1),
    Sketcher.Constraint("Coincident", 40, 2, 41, 1),
    Sketcher.Constraint("Coincident", 41, 2, 25, 1),
    Sketcher.Constraint("Vertical", 25),
    Sketcher.Constraint("Vertical", 35),
    Sketcher.Constraint("Horizontal", 36),
    Sketcher.Constraint("Vertical", 37),
    Sketcher.Constraint("Vertical", 40),
    Sketcher.Constraint("Horizontal", 41),
    Sketcher.Constraint("Horizontal", 36, 2, 40, 2),
    Sketcher.Constraint("DistanceY", 37, 1, 37, 2, 1.421191),
])
pocket3 = body.newObject("PartDesign::Pocket", "Pocket002")
pocket3.Profile = sketch5
pocket3.Length = Q("0.02 in")
pocket3.Reversed = True

doc.recompute()
